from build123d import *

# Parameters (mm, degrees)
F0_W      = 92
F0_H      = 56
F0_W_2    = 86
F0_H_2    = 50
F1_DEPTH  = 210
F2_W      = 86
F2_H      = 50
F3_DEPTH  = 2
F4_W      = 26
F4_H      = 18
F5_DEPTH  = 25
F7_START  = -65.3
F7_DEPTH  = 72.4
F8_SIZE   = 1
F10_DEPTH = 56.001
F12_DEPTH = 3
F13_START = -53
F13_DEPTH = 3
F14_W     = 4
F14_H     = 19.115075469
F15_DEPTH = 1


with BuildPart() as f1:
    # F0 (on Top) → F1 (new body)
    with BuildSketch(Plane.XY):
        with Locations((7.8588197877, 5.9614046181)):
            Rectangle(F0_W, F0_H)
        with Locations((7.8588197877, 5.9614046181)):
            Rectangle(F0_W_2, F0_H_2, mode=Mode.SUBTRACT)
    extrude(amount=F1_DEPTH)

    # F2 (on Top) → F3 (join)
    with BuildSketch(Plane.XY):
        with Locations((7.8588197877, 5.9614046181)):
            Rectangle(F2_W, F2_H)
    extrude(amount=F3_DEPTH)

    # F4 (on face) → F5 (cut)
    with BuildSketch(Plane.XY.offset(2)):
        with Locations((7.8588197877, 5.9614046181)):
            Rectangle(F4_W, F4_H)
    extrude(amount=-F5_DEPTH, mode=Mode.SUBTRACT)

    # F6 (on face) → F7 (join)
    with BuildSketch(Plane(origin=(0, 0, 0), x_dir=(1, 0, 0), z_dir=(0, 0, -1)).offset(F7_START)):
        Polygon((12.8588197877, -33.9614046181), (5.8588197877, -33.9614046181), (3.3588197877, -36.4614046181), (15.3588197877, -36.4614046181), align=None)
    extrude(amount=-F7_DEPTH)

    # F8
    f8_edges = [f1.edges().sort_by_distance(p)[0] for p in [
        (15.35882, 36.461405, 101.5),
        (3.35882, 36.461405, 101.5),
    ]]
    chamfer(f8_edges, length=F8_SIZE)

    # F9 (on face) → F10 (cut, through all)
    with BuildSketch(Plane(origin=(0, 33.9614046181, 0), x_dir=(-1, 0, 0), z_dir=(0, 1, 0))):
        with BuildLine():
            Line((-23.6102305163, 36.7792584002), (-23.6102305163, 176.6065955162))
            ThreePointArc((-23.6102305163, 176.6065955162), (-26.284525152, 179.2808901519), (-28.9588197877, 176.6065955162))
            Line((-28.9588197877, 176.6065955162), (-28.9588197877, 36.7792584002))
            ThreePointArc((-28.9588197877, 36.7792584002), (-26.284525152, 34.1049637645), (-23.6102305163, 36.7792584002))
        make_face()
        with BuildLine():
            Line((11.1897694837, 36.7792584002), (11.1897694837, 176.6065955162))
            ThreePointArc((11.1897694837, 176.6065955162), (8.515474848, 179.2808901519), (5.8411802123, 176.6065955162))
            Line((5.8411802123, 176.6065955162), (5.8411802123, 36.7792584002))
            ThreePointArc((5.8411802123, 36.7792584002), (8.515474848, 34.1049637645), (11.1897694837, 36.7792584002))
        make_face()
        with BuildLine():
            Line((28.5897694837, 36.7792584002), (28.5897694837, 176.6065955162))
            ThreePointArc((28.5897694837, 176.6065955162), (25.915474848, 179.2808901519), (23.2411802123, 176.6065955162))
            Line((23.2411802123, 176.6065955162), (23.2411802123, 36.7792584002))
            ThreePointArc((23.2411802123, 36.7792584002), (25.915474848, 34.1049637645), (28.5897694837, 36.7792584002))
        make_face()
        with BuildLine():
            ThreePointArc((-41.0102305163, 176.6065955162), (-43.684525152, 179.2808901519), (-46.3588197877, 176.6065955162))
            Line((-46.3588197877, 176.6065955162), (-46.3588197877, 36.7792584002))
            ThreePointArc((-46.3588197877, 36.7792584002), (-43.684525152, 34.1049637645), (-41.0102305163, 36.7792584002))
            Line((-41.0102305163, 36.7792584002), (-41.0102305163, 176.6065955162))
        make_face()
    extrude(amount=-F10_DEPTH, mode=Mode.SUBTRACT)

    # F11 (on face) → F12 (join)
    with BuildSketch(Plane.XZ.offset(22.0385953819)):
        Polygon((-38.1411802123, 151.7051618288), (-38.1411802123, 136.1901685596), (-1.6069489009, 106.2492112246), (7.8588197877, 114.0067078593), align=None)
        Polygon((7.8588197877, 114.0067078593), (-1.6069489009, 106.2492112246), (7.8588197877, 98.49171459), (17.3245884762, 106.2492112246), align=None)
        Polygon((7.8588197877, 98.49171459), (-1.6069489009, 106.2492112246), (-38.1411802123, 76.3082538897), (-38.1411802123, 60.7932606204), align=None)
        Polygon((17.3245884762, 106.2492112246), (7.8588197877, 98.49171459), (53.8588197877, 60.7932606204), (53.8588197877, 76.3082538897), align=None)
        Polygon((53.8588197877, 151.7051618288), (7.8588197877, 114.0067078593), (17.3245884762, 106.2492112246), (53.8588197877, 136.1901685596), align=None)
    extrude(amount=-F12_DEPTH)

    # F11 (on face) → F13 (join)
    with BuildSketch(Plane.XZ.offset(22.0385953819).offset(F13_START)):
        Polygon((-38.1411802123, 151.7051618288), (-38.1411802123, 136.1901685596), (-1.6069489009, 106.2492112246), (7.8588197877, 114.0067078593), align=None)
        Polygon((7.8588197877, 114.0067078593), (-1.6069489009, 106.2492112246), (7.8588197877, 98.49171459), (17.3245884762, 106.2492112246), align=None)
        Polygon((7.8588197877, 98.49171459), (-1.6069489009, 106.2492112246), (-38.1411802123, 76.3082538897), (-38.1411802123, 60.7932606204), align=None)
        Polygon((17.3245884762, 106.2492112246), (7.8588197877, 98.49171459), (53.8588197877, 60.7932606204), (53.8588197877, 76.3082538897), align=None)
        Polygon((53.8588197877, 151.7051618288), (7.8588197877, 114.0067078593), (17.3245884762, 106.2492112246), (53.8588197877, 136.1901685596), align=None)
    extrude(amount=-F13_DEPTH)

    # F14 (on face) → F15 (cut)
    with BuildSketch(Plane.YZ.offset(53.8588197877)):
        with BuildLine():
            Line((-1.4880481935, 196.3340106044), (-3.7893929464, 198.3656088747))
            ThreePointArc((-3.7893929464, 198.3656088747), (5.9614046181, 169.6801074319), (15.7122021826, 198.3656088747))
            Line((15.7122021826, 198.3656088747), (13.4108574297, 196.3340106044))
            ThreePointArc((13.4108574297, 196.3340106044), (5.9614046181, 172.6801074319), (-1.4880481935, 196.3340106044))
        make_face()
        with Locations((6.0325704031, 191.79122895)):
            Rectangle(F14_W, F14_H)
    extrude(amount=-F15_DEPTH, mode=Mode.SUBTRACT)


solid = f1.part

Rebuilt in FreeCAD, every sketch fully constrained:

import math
import FreeCAD as App
import Part
import Sketcher
from FreeCAD import Vector


def edges_at(feature, points):
    """Names of the edges that pass closest to the given points."""
    edges = feature.Shape.Edges
    near = lambda p: min(range(len(edges)), key=lambda i: edges[i].distToShape(Part.Vertex(*p))[0])
    return sorted({f"Edge{near(p) + 1}" for p in points})


def add_polygon(sketch, points):
    """Adds a closed chain of lines whose ends are joined by coincident constraints."""
    first, n = sketch.GeometryCount, len(points)
    for a, b in zip(points, points[1:] + points[:1]):
        sketch.addGeometry(Part.LineSegment(App.Vector(*a, 0), App.Vector(*b, 0)), False)
    for i in range(n):
        sketch.addConstraint(Sketcher.Constraint("Coincident", first + i, 2, first + (i + 1) % n, 1))

doc = App.newDocument("Part")
body = doc.addObject("PartDesign::Body", "Body")

# Sketch on XY plane
sketch1 = body.newObject("Sketcher::SketchObject", "Sketch")
sketch1.AttachmentSupport = (doc.getObject("XY_Plane"), [""])
sketch1.MapMode = "FlatFace"
add_polygon(sketch1, [(-38.14118, 33.961405), (-38.14118, -22.038595), (53.85882, -22.038595), (53.85882, 33.961405)])  # lines 0-3
add_polygon(sketch1, [(50.85882, -19.038595), (-35.14118, -19.038595), (-35.14118, 30.961405), (50.85882, 30.961405)])  # lines 4-7
sketch1.addConstraint(Sketcher.Constraint("Vertical", 0))
sketch1.addConstraint(Sketcher.Constraint("Horizontal", 1))
sketch1.addConstraint(Sketcher.Constraint("Vertical", 2))
sketch1.addConstraint(Sketcher.Constraint("Horizontal", 3))
sketch1.addConstraint(Sketcher.Constraint("Horizontal", 4))
sketch1.addConstraint(Sketcher.Constraint("Vertical", 5))
sketch1.addConstraint(Sketcher.Constraint("Horizontal", 6))
sketch1.addConstraint(Sketcher.Constraint("Vertical", 7))
sketch1.addConstraint(Sketcher.Constraint("DistanceX", 1, 1, 1, 2, 92.0))
sketch1.addConstraint(Sketcher.Constraint("DistanceX", 4, 2, 4, 1, 86.0))
sketch1.addConstraint(Sketcher.Constraint("DistanceY", 0, 2, 0, 1, 56.0))
sketch1.addConstraint(Sketcher.Constraint("DistanceY", 5, 1, 5, 2, 50.0))
sketch1.addConstraint(Sketcher.Constraint("DistanceX", 0, 2, 4, 2, 3.0))
sketch1.addConstraint(Sketcher.Constraint("DistanceY", 0, 2, 4, 2, 3.0))
sketch1.addConstraint(Sketcher.Constraint("DistanceX", 0, 2, -1, 1, 38.14118))
sketch1.addConstraint(Sketcher.Constraint("DistanceY", 0, 2, -1, 1, 22.038595))
pad1 = body.newObject("PartDesign::Pad", "Pad")
pad1.Profile = sketch1
pad1.Length = 210

# Sketch on XY plane
sketch2 = body.newObject("Sketcher::SketchObject", "Sketch001")
sketch2.AttachmentSupport = (doc.getObject("XY_Plane"), [""])
sketch2.MapMode = "FlatFace"
add_polygon(sketch2, [(-35.14118, 30.961405), (-35.14118, -19.038595), (50.85882, -19.038595), (50.85882, 30.961405)])  # lines 0-3
sketch2.addConstraint(Sketcher.Constraint("Vertical", 0))
sketch2.addConstraint(Sketcher.Constraint("Horizontal", 1))
sketch2.addConstraint(Sketcher.Constraint("Vertical", 2))
sketch2.addConstraint(Sketcher.Constraint("Horizontal", 3))
sketch2.addConstraint(Sketcher.Constraint("DistanceX", 1, 1, 1, 2, 86.0))
sketch2.addConstraint(Sketcher.Constraint("DistanceY", 0, 2, 0, 1, 50.0))
sketch2.addConstraint(Sketcher.Constraint("DistanceX", 0, 2, -1, 1, 35.14118))
sketch2.addConstraint(Sketcher.Constraint("DistanceY", 0, 2, -1, 1, 19.038595))
pad2 = body.newObject("PartDesign::Pad", "Pad001")
pad2.Profile = sketch2
pad2.Length = 2

# Sketch on XY plane
sketch3 = body.newObject("Sketcher::SketchObject", "Sketch002")
sketch3.AttachmentSupport = (doc.getObject("XY_Plane"), [""])
sketch3.MapMode = "FlatFace"
sketch3.AttachmentOffset = App.Placement(Vector(0, 0, 2), App.Rotation())
add_polygon(sketch3, [(-5.14118, 14.961405), (-5.14118, -3.038595), (20.85882, -3.038595), (20.85882, 14.961405)])  # lines 0-3
sketch3.addConstraint(Sketcher.Constraint("Vertical", 0))
sketch3.addConstraint(Sketcher.Constraint("Horizontal", 1))
sketch3.addConstraint(Sketcher.Constraint("Vertical", 2))
sketch3.addConstraint(Sketcher.Constraint("Horizontal", 3))
sketch3.addConstraint(Sketcher.Constraint("DistanceX", 1, 1, 1, 2, 26.0))
sketch3.addConstraint(Sketcher.Constraint("DistanceY", 0, 2, 0, 1, 18.0))
sketch3.addConstraint(Sketcher.Constraint("DistanceX", 0, 2, -1, 1, 5.14118))
sketch3.addConstraint(Sketcher.Constraint("DistanceY", 0, 2, -1, 1, 3.038595))
pocket1 = body.newObject("PartDesign::Pocket", "Pocket")
pocket1.Profile = sketch3
pocket1.Length = 25

# Sketch on XY plane
sketch4 = body.newObject("Sketcher::SketchObject", "Sketch003")
sketch4.AttachmentSupport = (doc.getObject("XY_Plane"), [""])
sketch4.MapMode = "FlatFace"
sketch4.AttachmentOffset = App.Placement(Vector(0, 0, 65.3), App.Rotation())
add_polygon(sketch4, [(12.85882, 33.961405), (5.85882, 33.961405), (3.35882, 36.461405), (15.35882, 36.461405)])  # lines 0-3
sketch4.addConstraint(Sketcher.Constraint("Horizontal", 0))
sketch4.addConstraint(Sketcher.Constraint("Horizontal", 2))
sketch4.addConstraint(Sketcher.Constraint("Perpendicular", 1, 3))
sketch4.addConstraint(Sketcher.Constraint("Equal", 1, 3))
sketch4.addConstraint(Sketcher.Constraint("DistanceX", 0, 2, 0, 1, 7.0))
sketch4.addConstraint(Sketcher.Constraint("DistanceX", 2, 1, 2, 2, 12.0))
sketch4.addConstraint(Sketcher.Constraint("DistanceX", -1, 1, 0, 2, 5.85882))
sketch4.addConstraint(Sketcher.Constraint("DistanceY", -1, 1, 0, 2, 33.961405))
pad3 = body.newObject("PartDesign::Pad", "Pad002")
pad3.Profile = sketch4
pad3.Length = 72.4
doc.recompute()

chamfer = body.newObject("PartDesign::Chamfer", "Chamfer")
chamfer.Base = (pad3, edges_at(pad3, [(15.359, 36.461, 101.5), (3.359, 36.461, 101.5)]))
chamfer.Size = 1

# Sketch on XZ plane
sketch5 = body.newObject("Sketcher::SketchObject", "Sketch004")
sketch5.AttachmentSupport = (doc.getObject("XZ_Plane"), [""])
sketch5.MapMode = "FlatFace"
sketch5.AttachmentOffset = App.Placement(Vector(0, 0, -33.961405), App.Rotation())
sketch5.addGeometry(Part.LineSegment(Vector(23.610231, 36.779258, 0), Vector(23.610231, 176.606596, 0)), False)
sketch5.addGeometry(Part.ArcOfCircle(Part.Circle(Vector(26.284525, 176.606596, 0), Vector(0, 0, 1), 2.674295), math.radians(0), math.radians(180)), False)
sketch5.addGeometry(Part.LineSegment(Vector(28.95882, 176.606596, 0), Vector(28.95882, 36.779258, 0)), False)
sketch5.addGeometry(Part.ArcOfCircle(Part.Circle(Vector(26.284525, 36.779258, 0), Vector(0, 0, 1), 2.674295), math.radians(180), math.radians(360)), False)
sketch5.addGeometry(Part.LineSegment(Vector(-11.189769, 36.779258, 0), Vector(-11.189769, 176.606596, 0)), False)
sketch5.addGeometry(Part.ArcOfCircle(Part.Circle(Vector(-8.515475, 176.606596, 0), Vector(0, 0, 1), 2.674295), math.radians(0), math.radians(180)), False)
sketch5.addGeometry(Part.LineSegment(Vector(-5.84118, 176.606596, 0), Vector(-5.84118, 36.779258, 0)), False)
sketch5.addGeometry(Part.ArcOfCircle(Part.Circle(Vector(-8.515475, 36.779258, 0), Vector(0, 0, 1), 2.674295), math.radians(180), math.radians(360)), False)
sketch5.addGeometry(Part.LineSegment(Vector(-28.589769, 36.779258, 0), Vector(-28.589769, 176.606596, 0)), False)
sketch5.addGeometry(Part.ArcOfCircle(Part.Circle(Vector(-25.915475, 176.606596, 0), Vector(0, 0, 1), 2.674295), math.radians(0), math.radians(180)), False)
sketch5.addGeometry(Part.LineSegment(Vector(-23.24118, 176.606596, 0), Vector(-23.24118, 36.779258, 0)), False)
sketch5.addGeometry(Part.ArcOfCircle(Part.Circle(Vector(-25.915475, 36.779258, 0), Vector(0, 0, 1), 2.674295), math.radians(180), math.radians(360)), False)
sketch5.addGeometry(Part.ArcOfCircle(Part.Circle(Vector(43.684525, 176.606596, 0), Vector(0, 0, 1), 2.674295), math.radians(0), math.radians(180)), False)
sketch5.addGeometry(Part.LineSegment(Vector(46.35882, 176.606596, 0), Vector(46.35882, 36.779258, 0)), False)
sketch5.addGeometry(Part.ArcOfCircle(Part.Circle(Vector(43.684525, 36.779258, 0), Vector(0, 0, 1), 2.674295), math.radians(180), math.radians(360)), False)
sketch5.addGeometry(Part.LineSegment(Vector(41.010231, 36.779258, 0), Vector(41.010231, 176.606596, 0)), False)
sketch5.addConstraint(Sketcher.Constraint("Tangent", 0, 2, 1, 2))
sketch5.addConstraint(Sketcher.Constraint("Tangent", 1, 1, 2, 1))
sketch5.addConstraint(Sketcher.Constraint("Tangent", 2, 2, 3, 2))
sketch5.addConstraint(Sketcher.Constraint("Tangent", 3, 1, 0, 1))
sketch5.addConstraint(Sketcher.Constraint("Tangent", 4, 2, 5, 2))
sketch5.addConstraint(Sketcher.Constraint("Tangent", 5, 1, 6, 1))
sketch5.addConstraint(Sketcher.Constraint("Tangent", 6, 2, 7, 2))
sketch5.addConstraint(Sketcher.Constraint("Tangent", 7, 1, 4, 1))
sketch5.addConstraint(Sketcher.Constraint("Tangent", 8, 2, 9, 2))
sketch5.addConstraint(Sketcher.Constraint("Tangent", 9, 1, 10, 1))
sketch5.addConstraint(Sketcher.Constraint("Tangent", 10, 2, 11, 2))
sketch5.addConstraint(Sketcher.Constraint("Tangent", 11, 1, 8, 1))
sketch5.addConstraint(Sketcher.Constraint("Tangent", 12, 1, 13, 1))
sketch5.addConstraint(Sketcher.Constraint("Tangent", 13, 2, 14, 2))
sketch5.addConstraint(Sketcher.Constraint("Tangent", 14, 1, 15, 1))
sketch5.addConstraint(Sketcher.Constraint("Tangent", 15, 2, 12, 2))
sketch5.addConstraint(Sketcher.Constraint("Vertical", 0))
sketch5.addConstraint(Sketcher.Constraint("Vertical", 2))
sketch5.addConstraint(Sketcher.Constraint("Vertical", 4))
sketch5.addConstraint(Sketcher.Constraint("Vertical", 6))
sketch5.addConstraint(Sketcher.Constraint("Vertical", 8))
sketch5.addConstraint(Sketcher.Constraint("Vertical", 10))
sketch5.addConstraint(Sketcher.Constraint("Vertical", 13))
sketch5.addConstraint(Sketcher.Constraint("Vertical", 15))
sketch5.addConstraint(Sketcher.Constraint("Equal", 3, 5))
sketch5.addConstraint(Sketcher.Constraint("Equal", 7, 9))
sketch5.addConstraint(Sketcher.Constraint("Equal", 11, 12))
sketch5.addConstraint(Sketcher.Constraint("Horizontal", 1, 3, 5, 3))
sketch5.addConstraint(Sketcher.Constraint("Horizontal", 3, 3, 7, 3))
sketch5.addConstraint(Sketcher.Constraint("Horizontal", 5, 3, 9, 3))
sketch5.addConstraint(Sketcher.Constraint("Horizontal", 7, 3, 11, 3))
sketch5.addConstraint(Sketcher.Constraint("Horizontal", 9, 3, 12, 3))
sketch5.addConstraint(Sketcher.Constraint("Horizontal", 11, 3, 14, 3))
sketch5.addConstraint(Sketcher.Constraint("DistanceX", 5, 3, 1, 3, 34.8))
sketch5.addConstraint(Sketcher.Constraint("DistanceX", 9, 3, 5, 3, 17.4))
sketch5.addConstraint(Sketcher.Constraint("DistanceX", 1, 3, 12, 3, 17.4))
sketch5.addConstraint(Sketcher.Constraint("Radius", 1, 2.674295))
sketch5.addConstraint(Sketcher.Constraint("DistanceY", 0, 1, 0, 2, 139.827337))
sketch5.addConstraint(Sketcher.Constraint("DistanceY", -1, 1, 3, 3, 36.779258))
sketch5.addConstraint(Sketcher.Constraint("DistanceX", -1, 1, 0, 2, 23.610231))
pocket2 = body.newObject("PartDesign::Pocket", "Pocket001")
pocket2.Profile = sketch5
pocket2.Type = "ThroughAll"
pocket2.Reversed = True

# Sketch on XZ plane
sketch6 = body.newObject("Sketcher::SketchObject", "Sketch005")
sketch6.AttachmentSupport = (doc.getObject("XZ_Plane"), [""])
sketch6.MapMode = "FlatFace"
sketch6.AttachmentOffset = App.Placement(Vector(0, 0, 22.038595), App.Rotation())
add_polygon(sketch6, [(-38.14118, 151.705162), (-38.14118, 136.190169), (-1.606949, 106.249211), (-38.14118, 76.308254), (-38.14118, 60.793261), (7.85882, 98.491715), (53.85882, 60.793261), (53.85882, 76.308254), (17.324588, 106.249211), (53.85882, 136.190169), (53.85882, 151.705162), (7.85882, 114.006708)])  # lines 0-11
sketch6.addConstraint(Sketcher.Constraint("Vertical", 0))
sketch6.addConstraint(Sketcher.Constraint("Vertical", 3))
sketch6.addConstraint(Sketcher.Constraint("Vertical", 6))
sketch6.addConstraint(Sketcher.Constraint("Vertical", 9))
sketch6.addConstraint(Sketcher.Constraint("Parallel", 2, 4))
sketch6.addConstraint(Sketcher.Constraint("Parallel", 1, 5))
sketch6.addConstraint(Sketcher.Constraint("Parallel", 5, 7))
sketch6.addConstraint(Sketcher.Constraint("Parallel", 4, 8))
sketch6.addConstraint(Sketcher.Constraint("Parallel", 8, 10))
sketch6.addConstraint(Sketcher.Constraint("Parallel", 7, 11))
sketch6.addConstraint(Sketcher.Constraint("Horizontal", 3, 2, 5, 2))
sketch6.addConstraint(Sketcher.Constraint("Horizontal", 2, 2, 6, 2))
sketch6.addConstraint(Sketcher.Constraint("Horizontal", 1, 2, 7, 2))
sketch6.addConstraint(Sketcher.Constraint("Horizontal", 0, 2, 8, 2))
sketch6.addConstraint(Sketcher.Constraint("Horizontal", 9, 2, 11, 2))
sketch6.addConstraint(Sketcher.Constraint("Vertical", 0, 2, 2, 2))
sketch6.addConstraint(Sketcher.Constraint("Vertical", 6, 2, 8, 2))
sketch6.addConstraint(Sketcher.Constraint("Equal", 0, 3))
sketch6.addConstraint(Sketcher.Constraint("DistanceX", 2, 2, 4, 2, 46.0))
sketch6.addConstraint(Sketcher.Constraint("Distance", 4, 59.474141))
sketch6.addConstraint(Sketcher.Constraint("DistanceY", 0, 2, 0, 1, 15.514993))
sketch6.addConstraint(Sketcher.Constraint("DistanceX", 0, 2, -1, 1, 38.14118))
sketch6.addConstraint(Sketcher.Constraint("DistanceY", -1, 1, 0, 2, 136.190169))
sketch6.addConstraint(Sketcher.Constraint("DistanceX", 1, 2, -1, 1, 1.606949))
pad4 = body.newObject("PartDesign::Pad", "Pad003")
pad4.Profile = sketch6
pad4.Length = 3
pad4.Reversed = True

# Sketch on XZ plane
sketch7 = body.newObject("Sketcher::SketchObject", "Sketch006")
sketch7.AttachmentSupport = (doc.getObject("XZ_Plane"), [""])
sketch7.MapMode = "FlatFace"
sketch7.AttachmentOffset = App.Placement(Vector(0, 0, -30.961405), App.Rotation())
add_polygon(sketch7, [(-38.14118, 151.705162), (-38.14118, 136.190169), (-1.606949, 106.249211), (-38.14118, 76.308254), (-38.14118, 60.793261), (7.85882, 98.491715), (53.85882, 60.793261), (53.85882, 76.308254), (17.324588, 106.249211), (53.85882, 136.190169), (53.85882, 151.705162), (7.85882, 114.006708)])  # lines 0-11
sketch7.addConstraint(Sketcher.Constraint("Vertical", 0))
sketch7.addConstraint(Sketcher.Constraint("Vertical", 3))
sketch7.addConstraint(Sketcher.Constraint("Vertical", 6))
sketch7.addConstraint(Sketcher.Constraint("Vertical", 9))
sketch7.addConstraint(Sketcher.Constraint("Parallel", 2, 4))
sketch7.addConstraint(Sketcher.Constraint("Parallel", 1, 5))
sketch7.addConstraint(Sketcher.Constraint("Parallel", 5, 7))
sketch7.addConstraint(Sketcher.Constraint("Parallel", 4, 8))
sketch7.addConstraint(Sketcher.Constraint("Parallel", 8, 10))
sketch7.addConstraint(Sketcher.Constraint("Parallel", 7, 11))
sketch7.addConstraint(Sketcher.Constraint("Horizontal", 3, 2, 5, 2))
sketch7.addConstraint(Sketcher.Constraint("Horizontal", 2, 2, 6, 2))
sketch7.addConstraint(Sketcher.Constraint("Horizontal", 1, 2, 7, 2))
sketch7.addConstraint(Sketcher.Constraint("Horizontal", 0, 2, 8, 2))
sketch7.addConstraint(Sketcher.Constraint("Horizontal", 9, 2, 11, 2))
sketch7.addConstraint(Sketcher.Constraint("Vertical", 0, 2, 2, 2))
sketch7.addConstraint(Sketcher.Constraint("Vertical", 6, 2, 8, 2))
sketch7.addConstraint(Sketcher.Constraint("Equal", 0, 3))
sketch7.addConstraint(Sketcher.Constraint("DistanceX", 2, 2, 4, 2, 46.0))
sketch7.addConstraint(Sketcher.Constraint("Distance", 4, 59.474141))
sketch7.addConstraint(Sketcher.Constraint("DistanceY", 0, 2, 0, 1, 15.514993))
sketch7.addConstraint(Sketcher.Constraint("DistanceX", 0, 2, -1, 1, 38.14118))
sketch7.addConstraint(Sketcher.Constraint("DistanceY", -1, 1, 0, 2, 136.190169))
sketch7.addConstraint(Sketcher.Constraint("DistanceX", 1, 2, -1, 1, 1.606949))
pad5 = body.newObject("PartDesign::Pad", "Pad004")
pad5.Profile = sketch7
pad5.Length = 3
pad5.Reversed = True

# Sketch on YZ plane
sketch8 = body.newObject("Sketcher::SketchObject", "Sketch007")
sketch8.AttachmentSupport = (doc.getObject("YZ_Plane"), [""])
sketch8.MapMode = "FlatFace"
sketch8.AttachmentOffset = App.Placement(Vector(0, 0, 53.85882), App.Rotation())
sketch8.addGeometry(Part.LineSegment(Vector(-1.488048, 196.334011, 0), Vector(-3.789393, 198.365609, 0)), False)  # 0
sketch8.addGeometry(Part.ArcOfCircle(Part.Circle(Vector(5.961405, 185.680107, 0), Vector(0, 0, 1), 16), math.radians(127.547927), math.radians(412.452073)), False)  # 1
sketch8.addGeometry(Part.LineSegment(Vector(15.712202, 198.365609, 0), Vector(13.410857, 196.334011, 0)), False)  # 2
sketch8.addGeometry(Part.ArcOfCircle(Part.Circle(Vector(5.961405, 185.680107, 0), Vector(0, 0, 1), 13), math.radians(124.962126), math.radians(415.037874)), False)  # 3
add_polygon(sketch8, [(4.03257, 201.348767), (4.03257, 182.233691), (8.03257, 182.233691), (8.03257, 201.348767)])  # lines 4-7
sketch8.addConstraint(Sketcher.Constraint("Coincident", 0, 2, 1, 1))
sketch8.addConstraint(Sketcher.Constraint("Coincident", 1, 2, 2, 1))
sketch8.addConstraint(Sketcher.Constraint("Coincident", 2, 2, 3, 2))
sketch8.addConstraint(Sketcher.Constraint("Coincident", 3, 1, 0, 1))
sketch8.addConstraint(Sketcher.Constraint("Vertical", 4))
sketch8.addConstraint(Sketcher.Constraint("Horizontal", 5))
sketch8.addConstraint(Sketcher.Constraint("Vertical", 6))
sketch8.addConstraint(Sketcher.Constraint("Horizontal", 7))
sketch8.addConstraint(Sketcher.Constraint("Coincident", 3, 3, 1, 3))
sketch8.addConstraint(Sketcher.Constraint("Horizontal", 0, 2, 1, 2))
sketch8.addConstraint(Sketcher.Constraint("Horizontal", 2, 2, 3, 1))
sketch8.addConstraint(Sketcher.Constraint("Radius", 1, 16.0))
sketch8.addConstraint(Sketcher.Constraint("Radius", 3, 13.0))
sketch8.addConstraint(Sketcher.Constraint("DistanceX", 5, 1, 5, 2, 4.0))
sketch8.addConstraint(Sketcher.Constraint("DistanceY", 1, 3, 0, 2, 12.685501))
sketch8.addConstraint(Sketcher.Constraint("DistanceY", 2, 2, 1, 2, 2.031598))
sketch8.addConstraint(Sketcher.Constraint("DistanceY", 4, 2, 4, 1, 19.115075))
sketch8.addConstraint(Sketcher.Constraint("DistanceY", -1, 1, 0, 2, 198.365609))
sketch8.addConstraint(Sketcher.Constraint("DistanceX", 3, 1, -1, 1, 1.488048))
sketch8.addConstraint(Sketcher.Constraint("DistanceX", -1, 1, 4, 2, 4.03257))
sketch8.addConstraint(Sketcher.Constraint("DistanceY", -1, 1, 4, 2, 182.233691))
pocket3 = body.newObject("PartDesign::Pocket", "Pocket002")
pocket3.Profile = sketch8
pocket3.Length = 1

doc.recompute()
